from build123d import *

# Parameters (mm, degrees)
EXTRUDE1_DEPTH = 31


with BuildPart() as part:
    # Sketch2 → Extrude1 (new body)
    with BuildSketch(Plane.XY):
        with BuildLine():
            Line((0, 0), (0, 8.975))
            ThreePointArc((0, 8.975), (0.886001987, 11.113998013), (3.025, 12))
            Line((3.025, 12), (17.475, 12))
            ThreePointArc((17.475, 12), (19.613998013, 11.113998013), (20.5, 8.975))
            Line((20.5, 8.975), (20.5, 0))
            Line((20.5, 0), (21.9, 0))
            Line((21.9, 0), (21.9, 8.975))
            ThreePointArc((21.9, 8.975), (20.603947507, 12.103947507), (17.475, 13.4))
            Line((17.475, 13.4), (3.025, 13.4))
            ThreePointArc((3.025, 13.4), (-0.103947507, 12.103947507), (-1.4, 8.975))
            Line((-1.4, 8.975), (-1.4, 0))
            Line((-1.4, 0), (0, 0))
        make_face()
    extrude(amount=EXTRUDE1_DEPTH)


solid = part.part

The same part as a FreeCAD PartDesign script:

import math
import FreeCAD as App
import Part
import Sketcher

doc = App.newDocument("Part")
body = doc.addObject("PartDesign::Body", "Body")

# Sketch on XY plane
sketch1 = body.newObject("Sketcher::SketchObject", "Sketch")
sketch1.AttachmentSupport = (doc.getObject("XY_Plane"), [""])
sketch1.MapMode = "FlatFace"
sketch1.addGeometry([
    Part.LineSegment(App.Vector(0, 0, 0), App.Vector(0, 9, 0)),  # 0
    Part.ArcOfCircle(Part.Circle(App.Vector(3, 9, 0), App.Vector(0, 0, 1), 3), math.radians(90), math.radians(180)),  # 1
    Part.LineSegment(App.Vector(3, 12, 0), App.Vector(17.5, 12, 0)),  # 2
    Part.ArcOfCircle(Part.Circle(App.Vector(17.5, 9, 0), App.Vector(0, 0, 1), 3), math.radians(0), math.radians(90)),  # 3
    Part.LineSegment(App.Vector(20.5, 9, 0), App.Vector(20.5, 0, 0)),  # 4
    Part.LineSegment(App.Vector(20.5, 0, 0), App.Vector(21.9, 0, 0)),  # 5
    Part.LineSegment(App.Vector(21.9, 0, 0), App.Vector(21.9, 9, 0)),  # 6
    Part.ArcOfCircle(Part.Circle(App.Vector(17.5, 9, 0), App.Vector(0, 0, 1), 4.4), math.radians(0), math.radians(90)),  # 7
    Part.LineSegment(App.Vector(17.5, 13.4, 0), App.Vector(3, 13.4, 0)),  # 8
    Part.ArcOfCircle(Part.Circle(App.Vector(3, 9, 0), App.Vector(0, 0, 1), 4.4), math.radians(90), math.radians(180)),  # 9
    Part.LineSegment(App.Vector(-1.4, 9, 0), App.Vector(-1.4, 0, 0)),  # 10
    Part.LineSegment(App.Vector(-1.4, 0, 0), App.Vector(0, 0, 0)),  # 11
], False)
sketch1.addConstraint([
    Sketcher.Constraint("Tangent", 0, 2, 1, 2),
    Sketcher.Constraint("Tangent", 1, 1, 2, 1),
    Sketcher.Constraint("Tangent", 2, 2, 3, 2),
    Sketcher.Constraint("Tangent", 3, 1, 4, 1),
    Sketcher.Constraint("Coincident", 4, 2, 5, 1),
    Sketcher.Constraint("Coincident", 5, 2, 6, 1),
    Sketcher.Constraint("Tangent", 6, 2, 7, 1),
    Sketcher.Constraint("Tangent", 7, 2, 8, 1),
    Sketcher.Constraint("Tangent", 8, 2, 9, 1),
    Sketcher.Constraint("Tangent", 9, 2, 10, 1),
    Sketcher.Constraint("Coincident", 10, 2, 11, 1),
    Sketcher.Constraint("Coincident", 11, 2, 0, 1),
    Sketcher.Constraint("Vertical", 0),
    Sketcher.Constraint("Horizontal", 2),
    Sketcher.Constraint("Vertical", 4),
    Sketcher.Constraint("Horizontal", 5),
    Sketcher.Constraint("Vertical", 6),
    Sketcher.Constraint("Horizontal", 8),
    Sketcher.Constraint("Vertical", 10),
    Sketcher.Constraint("Horizontal", 11),
    Sketcher.Constraint("Coincident", 11, 2, -1, 1),
    Sketcher.Constraint("Coincident", 7, 3, 3, 3),
    Sketcher.Constraint("Coincident", 9, 3, 1, 3),
    Sketcher.Constraint("Equal", 1, 3),
    Sketcher.Constraint("PointOnObject", 4, 2, -1),
    Sketcher.Constraint("DistanceX", 5, 1, 5, 2, 1.4),
    Sketcher.Constraint("DistanceY", -1, 1, 1, 1, 12.0),
    Sketcher.Constraint("Radius", 1, 3.025),
    Sketcher.Constraint("DistanceX", 2, 1, 2, 2, 14.45),
])
pad1 = body.newObject("PartDesign::Pad", "Pad")
pad1.Profile = sketch1
pad1.Length = 31

doc.recompute()
